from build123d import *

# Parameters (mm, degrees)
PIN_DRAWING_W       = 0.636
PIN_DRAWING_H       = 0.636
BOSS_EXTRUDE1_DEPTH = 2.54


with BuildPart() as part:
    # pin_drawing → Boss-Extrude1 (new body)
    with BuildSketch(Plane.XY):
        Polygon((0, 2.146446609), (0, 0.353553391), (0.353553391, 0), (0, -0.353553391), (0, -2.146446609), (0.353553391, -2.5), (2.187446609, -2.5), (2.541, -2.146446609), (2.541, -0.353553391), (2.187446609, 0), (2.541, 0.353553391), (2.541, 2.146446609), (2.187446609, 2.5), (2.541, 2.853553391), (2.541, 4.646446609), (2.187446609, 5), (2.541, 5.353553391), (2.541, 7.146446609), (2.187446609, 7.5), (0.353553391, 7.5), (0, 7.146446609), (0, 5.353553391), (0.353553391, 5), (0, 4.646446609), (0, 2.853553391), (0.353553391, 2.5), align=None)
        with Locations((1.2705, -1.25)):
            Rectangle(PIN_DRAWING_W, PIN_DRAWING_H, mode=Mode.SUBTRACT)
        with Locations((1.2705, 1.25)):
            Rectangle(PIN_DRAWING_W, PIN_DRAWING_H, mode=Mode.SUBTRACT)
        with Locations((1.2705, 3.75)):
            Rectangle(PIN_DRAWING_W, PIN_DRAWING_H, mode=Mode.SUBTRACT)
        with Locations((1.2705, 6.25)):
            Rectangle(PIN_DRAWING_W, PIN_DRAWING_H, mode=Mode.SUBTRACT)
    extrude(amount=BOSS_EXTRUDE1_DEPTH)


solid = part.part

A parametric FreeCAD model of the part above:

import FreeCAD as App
import Part
import Sketcher
from FreeCAD import Vector


def add_polygon(sketch, points):
    """Adds a closed chain of lines whose ends are joined by coincident constraints."""
    first, n = sketch.GeometryCount, len(points)
    for a, b in zip(points, points[1:] + points[:1]):
        sketch.addGeometry(Part.LineSegment(App.Vector(*a, 0), App.Vector(*b, 0)), False)
    for i in range(n):
        sketch.addConstraint(Sketcher.Constraint("Coincident", first + i, 2, first + (i + 1) % n, 1))

doc = App.newDocument("Part")
body = doc.addObject("PartDesign::Body", "Body")

sketch1 = body.newObject("Sketcher::SketchObject", "Sketch")
sketch1.AttachmentSupport = (doc.getObject("XY_Plane"), [""])
sketch1.MapMode = "FlatFace"
add_polygon(sketch1, [(0, 2.146447), (0, 0.353553), (0.353553, 0), (0, -0.353553), (0, -2.146447), (0.353553, -2.5), (2.187447, -2.5), (2.541, -2.146447), (2.541, -0.353553), (2.187447, 0), (2.541, 0.353553), (2.541, 2.146447), (2.187447, 2.5), (2.541, 2.853553), (2.541, 4.646447), (2.187447, 5), (2.541, 5.353553), (2.541, 7.146447), (2.187447, 7.5), (0.353553, 7.5), (0, 7.146447), (0, 5.353553), (0.353553, 5), (0, 4.646447), (0, 2.853553), (0.353553, 2.5)])
add_polygon(sketch1, [(1.5885, -1.568), (0.9525, -1.568), (0.9525, -0.932), (1.5885, -0.932)])
add_polygon(sketch1, [(1.5885, 0.932), (0.9525, 0.932), (0.9525, 1.568), (1.5885, 1.568)])
add_polygon(sketch1, [(1.5885, 3.432), (0.9525, 3.432), (0.9525, 4.068), (1.5885, 4.068)])
add_polygon(sketch1, [(1.5885, 5.932), (0.9525, 5.932), (0.9525, 6.568), (1.5885, 6.568)])
sketch1.addConstraint(Sketcher.Constraint("Vertical", 0))
sketch1.addConstraint(Sketcher.Constraint("Vertical", 3))
sketch1.addConstraint(Sketcher.Constraint("Horizontal", 5))
sketch1.addConstraint(Sketcher.Constraint("Vertical", 7))
sketch1.addConstraint(Sketcher.Constraint("Vertical", 10))
sketch1.addConstraint(Sketcher.Constraint("Vertical", 13))
sketch1.addConstraint(Sketcher.Constraint("Vertical", 16))
sketch1.addConstraint(Sketcher.Constraint("Horizontal", 18))
sketch1.addConstraint(Sketcher.Constraint("Vertical", 20))
sketch1.addConstraint(Sketcher.Constraint("Vertical", 23))
sketch1.addConstraint(Sketcher.Constraint("Horizontal", 26))
sketch1.addConstraint(Sketcher.Constraint("Vertical", 27))
sketch1.addConstraint(Sketcher.Constraint("Horizontal", 28))
sketch1.addConstraint(Sketcher.Constraint("Vertical", 29))
sketch1.addConstraint(Sketcher.Constraint("Horizontal", 30))
sketch1.addConstraint(Sketcher.Constraint("Vertical", 31))
sketch1.addConstraint(Sketcher.Constraint("Horizontal", 32))
sketch1.addConstraint(Sketcher.Constraint("Vertical", 33))
sketch1.addConstraint(Sketcher.Constraint("Horizontal", 34))
sketch1.addConstraint(Sketcher.Constraint("Vertical", 35))
sketch1.addConstraint(Sketcher.Constraint("Horizontal", 36))
sketch1.addConstraint(Sketcher.Constraint("Vertical", 37))
sketch1.addConstraint(Sketcher.Constraint("Horizontal", 38))
sketch1.addConstraint(Sketcher.Constraint("Vertical", 39))
sketch1.addConstraint(Sketcher.Constraint("Horizontal", 40))
sketch1.addConstraint(Sketcher.Constraint("Vertical", 41))
sketch1.addConstraint(Sketcher.Constraint("Symmetric", 0, 2, 2, 2, -1, 1))
sketch1.addConstraint(Sketcher.Constraint("Symmetric", 7, 2, 9, 2, -1))
sketch1.addConstraint(Sketcher.Constraint("Symmetric", 5, 2, 11, 2, -1))
sketch1.addConstraint(Sketcher.Constraint("Symmetric", 4, 2, 24, 2, -1))
sketch1.addConstraint(Sketcher.Constraint("Symmetric", 3, 2, 25, 2, -1))
sketch1.addConstraint(Sketcher.Constraint("Symmetric", 27, 2, 30, 2, -1))
sketch1.addConstraint(Sketcher.Constraint("Symmetric", 29, 2, 32, 2, -1))
sketch1.addConstraint(Sketcher.Constraint("PointOnObject", 1, 2, -1))
sketch1.addConstraint(Sketcher.Constraint("PointOnObject", 8, 2, -1))
sketch1.addConstraint(Sketcher.Constraint("PointOnObject", 19, 2, -2))
sketch1.addConstraint(Sketcher.Constraint("PointOnObject", 22, 2, -2))
sketch1.addConstraint(Sketcher.Constraint("Perpendicular", 1, 2))
sketch1.addConstraint(Sketcher.Constraint("Perpendicular", 2, 4))
sketch1.addConstraint(Sketcher.Constraint("Perpendicular", 4, 6))
sketch1.addConstraint(Sketcher.Constraint("Perpendicular", 6, 8))
sketch1.addConstraint(Sketcher.Constraint("Perpendicular", 9, 11))
sketch1.addConstraint(Sketcher.Constraint("Perpendicular", 11, 12))
sketch1.addConstraint(Sketcher.Constraint("Perpendicular", 12, 14))
sketch1.addConstraint(Sketcher.Constraint("Perpendicular", 14, 15))
sketch1.addConstraint(Sketcher.Constraint("Perpendicular", 15, 17))
sketch1.addConstraint(Sketcher.Constraint("Perpendicular", 17, 19))
sketch1.addConstraint(Sketcher.Constraint("Perpendicular", 19, 21))
sketch1.addConstraint(Sketcher.Constraint("Perpendicular", 21, 22))
sketch1.addConstraint(Sketcher.Constraint("Perpendicular", 22, 24))
sketch1.addConstraint(Sketcher.Constraint("Horizontal", 3, 2, 6, 2))
sketch1.addConstraint(Sketcher.Constraint("Horizontal", 2, 2, 7, 2))
sketch1.addConstraint(Sketcher.Constraint("Horizontal", 16, 2, 19, 2))
sketch1.addConstraint(Sketcher.Constraint("Horizontal", 15, 2, 20, 2))
sketch1.addConstraint(Sketcher.Constraint("Horizontal", 14, 2, 21, 2))
sketch1.addConstraint(Sketcher.Constraint("Horizontal", 13, 2, 22, 2))
sketch1.addConstraint(Sketcher.Constraint("Horizontal", 12, 2, 23, 2))
sketch1.addConstraint(Sketcher.Constraint("Vertical", 1, 2, 4, 2))
sketch1.addConstraint(Sketcher.Constraint("Vertical", 11, 2, 14, 2))
sketch1.addConstraint(Sketcher.Constraint("Vertical", 14, 2, 17, 2))
sketch1.addConstraint(Sketcher.Constraint("Vertical", 31, 2, 34, 2))
sketch1.addConstraint(Sketcher.Constraint("Vertical", 33, 2, 36, 2))
sketch1.addConstraint(Sketcher.Constraint("Vertical", 35, 2, 38, 2))
sketch1.addConstraint(Sketcher.Constraint("Vertical", 37, 2, 40, 2))
sketch1.addConstraint(Sketcher.Constraint("Equal", 10, 13))
sketch1.addConstraint(Sketcher.Constraint("Equal", 13, 16))
sketch1.addConstraint(Sketcher.Constraint("Equal", 40, 27))
sketch1.addConstraint(Sketcher.Constraint("Equal", 33, 35))
sketch1.addConstraint(Sketcher.Constraint("Equal", 37, 39))
sketch1.addConstraint(Sketcher.Constraint("DistanceY", -1, 1, 14, 2, 5.0))
sketch1.addConstraint(Sketcher.Constraint("Distance", 1, 0.5))
sketch1.addConstraint(Sketcher.Constraint("DistanceX", 26, 2, 26, 1, 0.636))
sketch1.addConstraint(Sketcher.Constraint("DistanceX", -1, 1, 6, 2, 2.541))
sketch1.addConstraint(Sketcher.Constraint("DistanceY", 26, 2, -1, 1, 1.568))
sketch1.addConstraint(Sketcher.Constraint("DistanceY", -1, 1, 34, 2, 3.432))
sketch1.addConstraint(Sketcher.Constraint("DistanceY", -1, 1, 38, 2, 5.932))
sketch1.addConstraint(Sketcher.Constraint("DistanceX", -1, 1, 26, 2, 0.9525))
pad1 = body.newObject("PartDesign::Pad", "Pad")
pad1.Profile = sketch1
pad1.Length = 2.54

doc.recompute()
